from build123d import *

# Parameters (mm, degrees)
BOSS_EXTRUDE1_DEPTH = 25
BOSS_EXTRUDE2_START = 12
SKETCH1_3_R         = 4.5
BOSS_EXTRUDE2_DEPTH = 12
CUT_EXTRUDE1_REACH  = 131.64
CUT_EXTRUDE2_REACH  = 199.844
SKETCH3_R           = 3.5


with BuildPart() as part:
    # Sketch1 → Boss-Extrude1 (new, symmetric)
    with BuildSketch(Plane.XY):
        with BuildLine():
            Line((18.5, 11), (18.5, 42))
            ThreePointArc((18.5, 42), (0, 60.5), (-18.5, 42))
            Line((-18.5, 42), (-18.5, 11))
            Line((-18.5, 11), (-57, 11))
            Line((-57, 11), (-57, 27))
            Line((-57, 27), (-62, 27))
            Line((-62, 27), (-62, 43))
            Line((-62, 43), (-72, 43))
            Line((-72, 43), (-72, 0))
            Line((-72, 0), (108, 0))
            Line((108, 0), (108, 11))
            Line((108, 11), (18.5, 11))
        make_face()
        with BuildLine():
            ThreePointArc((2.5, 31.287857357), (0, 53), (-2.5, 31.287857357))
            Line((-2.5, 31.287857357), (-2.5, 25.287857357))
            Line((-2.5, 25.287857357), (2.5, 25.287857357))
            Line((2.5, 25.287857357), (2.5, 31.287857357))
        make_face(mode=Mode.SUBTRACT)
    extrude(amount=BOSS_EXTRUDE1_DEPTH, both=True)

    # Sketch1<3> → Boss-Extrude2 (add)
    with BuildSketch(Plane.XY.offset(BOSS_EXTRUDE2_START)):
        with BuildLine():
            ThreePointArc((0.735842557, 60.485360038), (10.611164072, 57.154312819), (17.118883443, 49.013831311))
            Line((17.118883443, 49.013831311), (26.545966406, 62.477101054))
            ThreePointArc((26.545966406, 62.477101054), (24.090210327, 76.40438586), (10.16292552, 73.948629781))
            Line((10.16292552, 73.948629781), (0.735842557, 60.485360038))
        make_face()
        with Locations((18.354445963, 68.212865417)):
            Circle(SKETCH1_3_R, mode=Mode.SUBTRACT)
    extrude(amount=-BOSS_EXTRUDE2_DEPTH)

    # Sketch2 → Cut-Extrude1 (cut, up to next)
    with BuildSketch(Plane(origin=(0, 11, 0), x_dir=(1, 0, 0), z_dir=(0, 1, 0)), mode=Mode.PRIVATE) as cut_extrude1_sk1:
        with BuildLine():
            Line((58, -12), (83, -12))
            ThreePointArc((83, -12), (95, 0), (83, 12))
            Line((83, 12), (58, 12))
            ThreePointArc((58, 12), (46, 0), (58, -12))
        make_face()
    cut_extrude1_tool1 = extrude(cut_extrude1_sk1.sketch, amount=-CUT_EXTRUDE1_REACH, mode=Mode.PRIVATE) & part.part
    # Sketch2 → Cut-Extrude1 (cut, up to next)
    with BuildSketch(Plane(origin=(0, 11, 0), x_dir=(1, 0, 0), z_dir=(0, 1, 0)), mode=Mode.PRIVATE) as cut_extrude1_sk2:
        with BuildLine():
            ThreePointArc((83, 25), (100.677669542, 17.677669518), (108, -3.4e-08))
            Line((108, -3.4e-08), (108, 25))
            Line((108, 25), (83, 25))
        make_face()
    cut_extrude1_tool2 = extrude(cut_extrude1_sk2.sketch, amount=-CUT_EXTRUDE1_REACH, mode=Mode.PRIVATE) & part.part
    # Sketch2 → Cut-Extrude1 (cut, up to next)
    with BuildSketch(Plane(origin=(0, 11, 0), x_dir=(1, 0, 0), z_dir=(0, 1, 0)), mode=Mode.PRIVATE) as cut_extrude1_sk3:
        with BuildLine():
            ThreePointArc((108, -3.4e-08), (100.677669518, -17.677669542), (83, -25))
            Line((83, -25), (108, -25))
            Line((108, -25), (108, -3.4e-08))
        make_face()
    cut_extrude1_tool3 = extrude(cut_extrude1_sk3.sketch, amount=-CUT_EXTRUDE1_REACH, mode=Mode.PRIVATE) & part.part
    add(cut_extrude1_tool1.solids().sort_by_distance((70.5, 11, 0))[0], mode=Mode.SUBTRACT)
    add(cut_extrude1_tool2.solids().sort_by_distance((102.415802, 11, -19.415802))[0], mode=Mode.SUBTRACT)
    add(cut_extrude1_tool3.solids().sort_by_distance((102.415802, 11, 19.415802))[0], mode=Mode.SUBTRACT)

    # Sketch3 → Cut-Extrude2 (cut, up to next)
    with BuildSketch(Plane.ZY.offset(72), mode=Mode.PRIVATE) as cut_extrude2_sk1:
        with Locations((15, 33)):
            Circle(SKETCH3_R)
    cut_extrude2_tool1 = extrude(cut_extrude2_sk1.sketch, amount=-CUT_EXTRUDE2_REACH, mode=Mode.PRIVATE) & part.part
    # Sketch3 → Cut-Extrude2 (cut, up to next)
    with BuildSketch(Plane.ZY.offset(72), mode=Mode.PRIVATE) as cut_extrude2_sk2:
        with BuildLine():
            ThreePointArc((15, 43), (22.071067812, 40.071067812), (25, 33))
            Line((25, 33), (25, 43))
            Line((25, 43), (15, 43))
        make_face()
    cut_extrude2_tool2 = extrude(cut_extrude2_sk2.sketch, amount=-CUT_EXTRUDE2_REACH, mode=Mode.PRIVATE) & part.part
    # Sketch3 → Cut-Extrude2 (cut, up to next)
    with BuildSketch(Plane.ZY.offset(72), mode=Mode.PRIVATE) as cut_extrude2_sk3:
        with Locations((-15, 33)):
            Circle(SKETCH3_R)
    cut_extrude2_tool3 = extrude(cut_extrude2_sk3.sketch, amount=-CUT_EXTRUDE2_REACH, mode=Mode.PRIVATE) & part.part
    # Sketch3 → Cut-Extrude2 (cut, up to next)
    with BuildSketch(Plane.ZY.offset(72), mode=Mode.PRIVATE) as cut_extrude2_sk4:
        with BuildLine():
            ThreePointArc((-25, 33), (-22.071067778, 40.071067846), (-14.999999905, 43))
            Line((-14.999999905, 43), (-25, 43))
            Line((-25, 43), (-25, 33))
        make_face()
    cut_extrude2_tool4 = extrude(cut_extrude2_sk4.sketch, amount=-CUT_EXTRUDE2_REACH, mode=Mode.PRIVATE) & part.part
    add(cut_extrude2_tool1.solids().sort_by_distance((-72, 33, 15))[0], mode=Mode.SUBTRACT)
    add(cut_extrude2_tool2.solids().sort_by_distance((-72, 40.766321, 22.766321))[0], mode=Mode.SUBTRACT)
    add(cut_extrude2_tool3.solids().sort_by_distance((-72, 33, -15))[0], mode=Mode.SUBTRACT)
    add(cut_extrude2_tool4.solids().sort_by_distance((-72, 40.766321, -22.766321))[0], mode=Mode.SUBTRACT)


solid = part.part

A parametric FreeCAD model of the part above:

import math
import FreeCAD as App
import Part
import Sketcher

V = App.Vector
Q = App.Units.Quantity

doc = App.newDocument("Part")
params = doc.addObject("Spreadsheet::Sheet", "Params")
for row, (alias, value) in enumerate([
    ("sketch1_radius", "11 mm"),
    ("sketch1_radius2", "18.5 mm"),
    ("sketch1_width", "5 mm"),
    ("sketch1_width2", "10 mm"),
    ("sketch1_width3", "180 mm"),
    ("pad1_length", "50 mm"),
    ("sketch2_diameter", "9 mm"),
    ("sketch2_radius", "10 mm"),
    ("sketch2_radius2", "18.5 mm"),
    ("pad2_length", "12 mm"),
    ("sketch3_radius", "12 mm"),
    ("sketch3_width", "25 mm"),
    ("sketch4_radius", "25 mm"),
    ("sketch5_radius", "25 mm"),
    ("sketch6_diameter", "7 mm"),
    ("sketch7_radius", "10 mm"),
    ("sketch8_diameter", "7 mm"),
    ("sketch9_radius", "10 mm"),
], start=1):
    params.set(f"A{row}", alias)
    params.set(f"B{row}", "=" + value)
    params.setAlias(f"B{row}", alias)

body = doc.addObject("PartDesign::Body", "Body")

sketch1 = body.newObject("Sketcher::SketchObject", "Sketch")
sketch1.AttachmentSupport = (doc.getObject("XY_Plane"), [""])
sketch1.MapMode = "FlatFace"
sketch1.addGeometry(Part.LineSegment(V(18, 11, 0), V(18, 42, 0)), False)
sketch1.addGeometry(Part.ArcOfCircle(Part.Circle(V(0, 42, 0), V(0, 0, 1), 18), math.radians(0), math.radians(180)), False)
sketch1.addGeometry(Part.LineSegment(V(-18, 42, 0), V(-18, 11, 0)), False)
sketch1.addGeometry(Part.LineSegment(V(-18, 11, 0), V(-57, 11, 0)), False)
sketch1.addGeometry(Part.LineSegment(V(-57, 11, 0), V(-57, 27, 0)), False)
sketch1.addGeometry(Part.LineSegment(V(-57, 27, 0), V(-62, 27, 0)), False)
sketch1.addGeometry(Part.LineSegment(V(-62, 27, 0), V(-62, 43, 0)), False)
sketch1.addGeometry(Part.LineSegment(V(-62, 43, 0), V(-72, 43, 0)), False)
sketch1.addGeometry(Part.LineSegment(V(-72, 43, 0), V(-72, 0, 0)), False)
sketch1.addGeometry(Part.LineSegment(V(-72, 0, 0), V(108, 0, 0)), False)
sketch1.addGeometry(Part.LineSegment(V(108, 0, 0), V(108, 11, 0)), False)
sketch1.addGeometry(Part.LineSegment(V(108, 11, 0), V(18, 11, 0)), False)
sketch1.addGeometry(Part.ArcOfCircle(Part.Circle(V(0, 42, 0), V(0, 0, 1), 11), math.radians(-77), math.radians(257)), False)
sketch1.addGeometry(Part.LineSegment(V(2, 31, 0), V(2, 25, 0)), False)
sketch1.addGeometry(Part.LineSegment(V(2, 25, 0), V(-2, 25, 0)), False)
sketch1.addGeometry(Part.LineSegment(V(-2, 25, 0), V(-2, 31, 0)), False)
sketch1.addConstraint(Sketcher.Constraint("Tangent", 0, 2, 1, 1))
sketch1.addConstraint(Sketcher.Constraint("Tangent", 1, 2, 2, 1))
sketch1.addConstraint(Sketcher.Constraint("Coincident", 2, 2, 3, 1))
sketch1.addConstraint(Sketcher.Constraint("Coincident", 3, 2, 4, 1))
sketch1.addConstraint(Sketcher.Constraint("Coincident", 4, 2, 5, 1))
sketch1.addConstraint(Sketcher.Constraint("Coincident", 5, 2, 6, 1))
sketch1.addConstraint(Sketcher.Constraint("Coincident", 6, 2, 7, 1))
sketch1.addConstraint(Sketcher.Constraint("Coincident", 7, 2, 8, 1))
sketch1.addConstraint(Sketcher.Constraint("Coincident", 8, 2, 9, 1))
sketch1.addConstraint(Sketcher.Constraint("Coincident", 9, 2, 10, 1))
sketch1.addConstraint(Sketcher.Constraint("Coincident", 10, 2, 11, 1))
sketch1.addConstraint(Sketcher.Constraint("Coincident", 11, 2, 0, 1))
sketch1.addConstraint(Sketcher.Constraint("Coincident", 12, 1, 13, 1))
sketch1.addConstraint(Sketcher.Constraint("Coincident", 13, 2, 14, 1))
sketch1.addConstraint(Sketcher.Constraint("Coincident", 14, 2, 15, 1))
sketch1.addConstraint(Sketcher.Constraint("Coincident", 15, 2, 12, 2))
sketch1.addConstraint(Sketcher.Constraint("Vertical", 0))
sketch1.addConstraint(Sketcher.Constraint("Vertical", 2))
sketch1.addConstraint(Sketcher.Constraint("Horizontal", 3))
sketch1.addConstraint(Sketcher.Constraint("Vertical", 4))
sketch1.addConstraint(Sketcher.Constraint("Horizontal", 5))
sketch1.addConstraint(Sketcher.Constraint("Vertical", 6))
sketch1.addConstraint(Sketcher.Constraint("Horizontal", 7))
sketch1.addConstraint(Sketcher.Constraint("Vertical", 8))
sketch1.addConstraint(Sketcher.Constraint("Horizontal", 9))
sketch1.addConstraint(Sketcher.Constraint("Vertical", 10))
sketch1.addConstraint(Sketcher.Constraint("Horizontal", 11))
sketch1.addConstraint(Sketcher.Constraint("Vertical", 13))
sketch1.addConstraint(Sketcher.Constraint("Horizontal", 14))
sketch1.addConstraint(Sketcher.Constraint("Vertical", 15))
sketch1.addConstraint(Sketcher.Constraint("Coincident", 12, 3, 1, 3))
sketch1.addConstraint(Sketcher.Constraint("Symmetric", 2, 2, 11, 2, -2))
sketch1.addConstraint(Sketcher.Constraint("PointOnObject", 8, 2, -1))
sketch1.addConstraint(Sketcher.Constraint("Horizontal", 12, 1, 15, 2))
sketch1.addConstraint(Sketcher.Constraint("Equal", 5, 14))
sketch1.addConstraint(Sketcher.Constraint("Equal", 4, 6))
sketch1.addConstraint(Sketcher.Constraint("Radius", 12, 11.0))
sketch1.addConstraint(Sketcher.Constraint("Radius", 1, 18.5))
sketch1.addConstraint(Sketcher.Constraint("DistanceX", 5, 2, 5, 1, 5.0))
sketch1.addConstraint(Sketcher.Constraint("DistanceX", 7, 2, 7, 1, 10.0))
sketch1.addConstraint(Sketcher.Constraint("DistanceX", 9, 1, 9, 2, 180.0))
sketch1.addConstraint(Sketcher.Constraint("DistanceY", 0, 1, 0, 2, 31.0))
sketch1.addConstraint(Sketcher.Constraint("DistanceY", 4, 1, 4, 2, 16.0))
sketch1.addConstraint(Sketcher.Constraint("DistanceY", 8, 2, 8, 1, 43.0))
sketch1.addConstraint(Sketcher.Constraint("DistanceY", 13, 2, 13, 1, 6.0))
sketch1.addConstraint(Sketcher.Constraint("DistanceX", 3, 2, 3, 1, 38.5))
sketch1.setExpression("Constraints[36]", "Params.sketch1_radius")
sketch1.setExpression("Constraints[37]", "Params.sketch1_radius2")
sketch1.setExpression("Constraints[38]", "Params.sketch1_width")
sketch1.setExpression("Constraints[39]", "Params.sketch1_width2")
sketch1.setExpression("Constraints[40]", "Params.sketch1_width3")
pad1 = body.newObject("PartDesign::Pad", "Pad")
pad1.Profile = sketch1
pad1.setExpression("Length", "Params.pad1_length")
pad1.Midplane = True

sketch2 = body.newObject("Sketcher::SketchObject", "Sketch001")
sketch2.AttachmentSupport = (doc.getObject("XY_Plane"), [""])
sketch2.MapMode = "FlatFace"
sketch2.AttachmentOffset = App.Placement(V(0, 0, 12), App.Rotation())
sketch2.addGeometry(Part.ArcOfCircle(Part.Circle(V(0, 42, 0), V(0, 0, 1), 18.5), math.radians(22), math.radians(88)), False)
sketch2.addGeometry(Part.LineSegment(V(17.1, 49, 0), V(26.5, 62.5, 0)), False)
sketch2.addGeometry(Part.ArcOfCircle(Part.Circle(V(18.4, 68.2, 0), V(0, 0, 1), 10), math.radians(-35), math.radians(145)), False)
sketch2.addGeometry(Part.LineSegment(V(10.2, 73.9, 0), V(0.7, 60.5, 0)), False)
sketch2.addGeometry(Part.Circle(V(18.4, 68.2, 0), V(0, 0, 1), 4.5), False)
sketch2.addConstraint(Sketcher.Constraint("Coincident", 0, 1, 1, 1))
sketch2.addConstraint(Sketcher.Constraint("Tangent", 1, 2, 2, 1))
sketch2.addConstraint(Sketcher.Constraint("Tangent", 2, 2, 3, 1))
sketch2.addConstraint(Sketcher.Constraint("Coincident", 3, 2, 0, 2))
sketch2.addConstraint(Sketcher.Constraint("Coincident", 4, 3, 2, 3))
sketch2.addConstraint(Sketcher.Constraint("PointOnObject", 0, 3, -2))
sketch2.addConstraint(Sketcher.Constraint("Parallel", 1, 3))
sketch2.addConstraint(Sketcher.Constraint("Equal", 1, 3))
sketch2.addConstraint(Sketcher.Constraint("Diameter", 4, 9.0))
sketch2.addConstraint(Sketcher.Constraint("Radius", 2, 10.0))
sketch2.addConstraint(Sketcher.Constraint("Radius", 0, 18.5))
sketch2.addConstraint(Sketcher.Constraint("Angle", 1, Q("55 deg")))
sketch2.addConstraint(Sketcher.Constraint("DistanceY", -1, 1, 0, 3, 42.0))
sketch2.addConstraint(Sketcher.Constraint("DistanceY", -1, 1, 1, 2, 62.477101))
sketch2.setExpression("Constraints[8]", "Params.sketch2_diameter")
sketch2.setExpression("Constraints[9]", "Params.sketch2_radius")
sketch2.setExpression("Constraints[10]", "Params.sketch2_radius2")
pad2 = body.newObject("PartDesign::Pad", "Pad001")
pad2.Profile = sketch2
pad2.setExpression("Length", "Params.pad2_length")
pad2.Reversed = True

sketch3 = body.newObject("Sketcher::SketchObject", "Sketch002")
sketch3.AttachmentSupport = (doc.getObject("XZ_Plane"), [""])
sketch3.MapMode = "FlatFace"
sketch3.AttachmentOffset = App.Placement(V(0, 0, -11), App.Rotation())
sketch3.addGeometry(Part.LineSegment(V(58, 12, 0), V(83, 12, 0)), False)
sketch3.addGeometry(Part.ArcOfCircle(Part.Circle(V(83, 0, 0), V(0, 0, 1), 12), math.radians(-90), math.radians(90)), False)
sketch3.addGeometry(Part.LineSegment(V(83, -12, 0), V(58, -12, 0)), False)
sketch3.addGeometry(Part.ArcOfCircle(Part.Circle(V(58, 0, 0), V(0, 0, 1), 12), math.radians(90), math.radians(270)), False)
sketch3.addConstraint(Sketcher.Constraint("Tangent", 0, 2, 1, 2))
sketch3.addConstraint(Sketcher.Constraint("Tangent", 1, 1, 2, 1))
sketch3.addConstraint(Sketcher.Constraint("Tangent", 2, 2, 3, 2))
sketch3.addConstraint(Sketcher.Constraint("Tangent", 3, 1, 0, 1))
sketch3.addConstraint(Sketcher.Constraint("Horizontal", 0))
sketch3.addConstraint(Sketcher.Constraint("Horizontal", 2))
sketch3.addConstraint(Sketcher.Constraint("PointOnObject", 1, 3, -1))
sketch3.addConstraint(Sketcher.Constraint("Radius", 1, 12.0))
sketch3.addConstraint(Sketcher.Constraint("DistanceX", 0, 1, 0, 2, 25.0))
sketch3.addConstraint(Sketcher.Constraint("DistanceX", -1, 1, 1, 3, 83.0))
sketch3.setExpression("Constraints[7]", "Params.sketch3_radius")
sketch3.setExpression("Constraints[8]", "Params.sketch3_width")
pocket1 = body.newObject("PartDesign::Pocket", "Pocket")
pocket1.Profile = sketch3
pocket1.Type = "UpToFirst"
pocket1.Reversed = True

sketch4 = body.newObject("Sketcher::SketchObject", "Sketch003")
sketch4.AttachmentSupport = (doc.getObject("XZ_Plane"), [""])
sketch4.MapMode = "FlatFace"
sketch4.AttachmentOffset = App.Placement(V(0, 0, -11), App.Rotation())
sketch4.addGeometry(Part.ArcOfCircle(Part.Circle(V(83, 0, 0), V(0, 0, 1), 25), math.radians(-90), math.radians(0)), False)
sketch4.addGeometry(Part.LineSegment(V(108, 0, 0), V(108, -25, 0)), False)
sketch4.addGeometry(Part.LineSegment(V(108, -25, 0), V(83, -25, 0)), False)
sketch4.addConstraint(Sketcher.Constraint("Tangent", 0, 2, 1, 1))
sketch4.addConstraint(Sketcher.Constraint("Coincident", 1, 2, 2, 1))
sketch4.addConstraint(Sketcher.Constraint("Tangent", 2, 2, 0, 1))
sketch4.addConstraint(Sketcher.Constraint("Vertical", 1))
sketch4.addConstraint(Sketcher.Constraint("Horizontal", 2))
sketch4.addConstraint(Sketcher.Constraint("PointOnObject", 0, 3, -1))
sketch4.addConstraint(Sketcher.Constraint("Radius", 0, 25.0))
sketch4.addConstraint(Sketcher.Constraint("DistanceX", -1, 1, 0, 3, 83.0))
sketch4.setExpression("Constraints[6]", "Params.sketch4_radius")
pocket2 = body.newObject("PartDesign::Pocket", "Pocket001")
pocket2.Profile = sketch4
pocket2.Type = "UpToFirst"
pocket2.Reversed = True

sketch5 = body.newObject("Sketcher::SketchObject", "Sketch004")
sketch5.AttachmentSupport = (doc.getObject("XZ_Plane"), [""])
sketch5.MapMode = "FlatFace"
sketch5.AttachmentOffset = App.Placement(V(0, 0, -11), App.Rotation())
sketch5.addGeometry(Part.ArcOfCircle(Part.Circle(V(83, 0, 0), V(0, 0, 1), 25), math.radians(0), math.radians(90)), False)
sketch5.addGeometry(Part.LineSegment(V(83, 25, 0), V(108, 25, 0)), False)
sketch5.addGeometry(Part.LineSegment(V(108, 25, 0), V(108, 0, 0)), False)
sketch5.addConstraint(Sketcher.Constraint("Tangent", 0, 2, 1, 1))
sketch5.addConstraint(Sketcher.Constraint("Coincident", 1, 2, 2, 1))
sketch5.addConstraint(Sketcher.Constraint("Tangent", 2, 2, 0, 1))
sketch5.addConstraint(Sketcher.Constraint("Horizontal", 1))
sketch5.addConstraint(Sketcher.Constraint("Vertical", 2))
sketch5.addConstraint(Sketcher.Constraint("PointOnObject", 0, 3, -1))
sketch5.addConstraint(Sketcher.Constraint("Radius", 0, 25.0))
sketch5.addConstraint(Sketcher.Constraint("DistanceX", -1, 1, 0, 3, 83.0))
sketch5.setExpression("Constraints[6]", "Params.sketch5_radius")
pocket3 = body.newObject("PartDesign::Pocket", "Pocket002")
pocket3.Profile = sketch5
pocket3.Type = "UpToFirst"
pocket3.Reversed = True

sketch6 = body.newObject("Sketcher::SketchObject", "Sketch005")
sketch6.AttachmentSupport = (doc.getObject("YZ_Plane"), [""])
sketch6.MapMode = "FlatFace"
sketch6.AttachmentOffset = App.Placement(V(0, 0, -72), App.Rotation())
sketch6.addGeometry(Part.Circle(V(33, 15, 0), V(0, 0, 1), 3.5), False)
sketch6.addConstraint(Sketcher.Constraint("Diameter", 0, 7.0))
sketch6.addConstraint(Sketcher.Constraint("DistanceX", -1, 1, 0, 3, 33.0))
sketch6.addConstraint(Sketcher.Constraint("DistanceY", -1, 1, 0, 3, 15.0))
sketch6.setExpression("Constraints[0]", "Params.sketch6_diameter")
pocket4 = body.newObject("PartDesign::Pocket", "Pocket003")
pocket4.Profile = sketch6
pocket4.Type = "UpToFirst"
pocket4.Reversed = True

sketch7 = body.newObject("Sketcher::SketchObject", "Sketch006")
sketch7.AttachmentSupport = (doc.getObject("YZ_Plane"), [""])
sketch7.MapMode = "FlatFace"
sketch7.AttachmentOffset = App.Placement(V(0, 0, -72), App.Rotation())
sketch7.addGeometry(Part.ArcOfCircle(Part.Circle(V(33, 15, 0), V(0, 0, 1), 10), math.radians(0), math.radians(90)), False)
sketch7.addGeometry(Part.LineSegment(V(33, 25, 0), V(43, 25, 0)), False)
sketch7.addGeometry(Part.LineSegment(V(43, 25, 0), V(43, 15, 0)), False)
sketch7.addConstraint(Sketcher.Constraint("Tangent", 0, 2, 1, 1))
sketch7.addConstraint(Sketcher.Constraint("Coincident", 1, 2, 2, 1))
sketch7.addConstraint(Sketcher.Constraint("Tangent", 2, 2, 0, 1))
sketch7.addConstraint(Sketcher.Constraint("Horizontal", 1))
sketch7.addConstraint(Sketcher.Constraint("Vertical", 2))
sketch7.addConstraint(Sketcher.Constraint("Radius", 0, 10.0))
sketch7.addConstraint(Sketcher.Constraint("DistanceX", -1, 1, 0, 3, 33.0))
sketch7.addConstraint(Sketcher.Constraint("DistanceY", -1, 1, 0, 3, 15.0))
sketch7.setExpression("Constraints[5]", "Params.sketch7_radius")
pocket5 = body.newObject("PartDesign::Pocket", "Pocket004")
pocket5.Profile = sketch7
pocket5.Type = "UpToFirst"
pocket5.Reversed = True

sketch8 = body.newObject("Sketcher::SketchObject", "Sketch007")
sketch8.AttachmentSupport = (doc.getObject("YZ_Plane"), [""])
sketch8.MapMode = "FlatFace"
sketch8.AttachmentOffset = App.Placement(V(0, 0, -72), App.Rotation())
sketch8.addGeometry(Part.Circle(V(33, -15, 0), V(0, 0, 1), 3.5), False)
sketch8.addConstraint(Sketcher.Constraint("Diameter", 0, 7.0))
sketch8.addConstraint(Sketcher.Constraint("DistanceX", -1, 1, 0, 3, 33.0))
sketch8.addConstraint(Sketcher.Constraint("DistanceY", 0, 3, -1, 1, 15.0))
sketch8.setExpression("Constraints[0]", "Params.sketch8_diameter")
pocket6 = body.newObject("PartDesign::Pocket", "Pocket005")
pocket6.Profile = sketch8
pocket6.Type = "UpToFirst"
pocket6.Reversed = True

sketch9 = body.newObject("Sketcher::SketchObject", "Sketch008")
sketch9.AttachmentSupport = (doc.getObject("YZ_Plane"), [""])
sketch9.MapMode = "FlatFace"
sketch9.AttachmentOffset = App.Placement(V(0, 0, -72), App.Rotation())
sketch9.addGeometry(Part.ArcOfCircle(Part.Circle(V(33, -15, 0), V(0, 0, 1), 10), math.radians(-90), math.radians(0)), False)
sketch9.addGeometry(Part.LineSegment(V(43, -15, 0), V(43, -25, 0)), False)
sketch9.addGeometry(Part.LineSegment(V(43, -25, 0), V(33, -25, 0)), False)
sketch9.addConstraint(Sketcher.Constraint("Tangent", 0, 2, 1, 1))
sketch9.addConstraint(Sketcher.Constraint("Coincident", 1, 2, 2, 1))
sketch9.addConstraint(Sketcher.Constraint("Tangent", 2, 2, 0, 1))
sketch9.addConstraint(Sketcher.Constraint("Vertical", 1))
sketch9.addConstraint(Sketcher.Constraint("Horizontal", 2))
sketch9.addConstraint(Sketcher.Constraint("Radius", 0, 10.0))
sketch9.addConstraint(Sketcher.Constraint("DistanceX", -1, 1, 0, 3, 33.0))
sketch9.addConstraint(Sketcher.Constraint("DistanceY", 0, 3, -1, 1, 15.0))
sketch9.setExpression("Constraints[5]", "Params.sketch9_radius")
pocket7 = body.newObject("PartDesign::Pocket", "Pocket006")
pocket7.Profile = sketch9
pocket7.Type = "UpToFirst"
pocket7.Reversed = True

doc.recompute()
